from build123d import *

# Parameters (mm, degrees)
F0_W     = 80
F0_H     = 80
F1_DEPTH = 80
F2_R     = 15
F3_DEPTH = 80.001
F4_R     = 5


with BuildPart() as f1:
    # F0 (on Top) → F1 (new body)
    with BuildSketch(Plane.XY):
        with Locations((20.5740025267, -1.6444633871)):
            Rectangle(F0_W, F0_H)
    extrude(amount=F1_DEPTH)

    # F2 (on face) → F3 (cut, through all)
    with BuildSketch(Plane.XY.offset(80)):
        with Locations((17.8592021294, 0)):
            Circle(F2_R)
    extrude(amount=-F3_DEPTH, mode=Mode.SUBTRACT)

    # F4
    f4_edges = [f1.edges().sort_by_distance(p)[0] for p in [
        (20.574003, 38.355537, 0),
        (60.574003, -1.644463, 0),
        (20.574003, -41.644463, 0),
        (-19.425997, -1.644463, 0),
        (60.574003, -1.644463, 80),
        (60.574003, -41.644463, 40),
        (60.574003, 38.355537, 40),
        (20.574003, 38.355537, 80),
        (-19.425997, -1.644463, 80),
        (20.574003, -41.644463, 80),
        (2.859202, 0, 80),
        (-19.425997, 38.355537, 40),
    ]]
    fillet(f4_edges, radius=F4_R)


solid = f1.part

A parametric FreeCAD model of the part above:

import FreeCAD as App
import Part
import Sketcher
from FreeCAD import Vector


def edges_at(feature, points):
    """Names of the edges that pass closest to the given points."""
    edges = feature.Shape.Edges
    near = lambda p: min(range(len(edges)), key=lambda i: edges[i].distToShape(Part.Vertex(*p))[0])
    return sorted({f"Edge{near(p) + 1}" for p in points})

doc = App.newDocument("Part")
params = doc.addObject("Spreadsheet::Sheet", "Params")
for row, (alias, value) in enumerate([
    ("sketch1_width", "80 mm"),
    ("pad1_length", "80 mm"),
    ("sketch2_diameter", "30 mm"),
    ("fillet_radius", "5 mm"),
], start=1):
    params.set(f"A{row}", alias)
    params.set(f"B{row}", "=" + value)
    params.setAlias(f"B{row}", alias)

body = doc.addObject("PartDesign::Body", "Body")

# Sketch on XY plane
sketch1 = body.newObject("Sketcher::SketchObject", "Sketch")
sketch1.AttachmentSupport = (doc.getObject("XY_Plane"), [""])
sketch1.MapMode = "FlatFace"
sketch1.addGeometry([
    Part.LineSegment(Vector(-19, 38, 0), Vector(-19, -42, 0)),
    Part.LineSegment(Vector(-19, -42, 0), Vector(61, -42, 0)),
    Part.LineSegment(Vector(61, -42, 0), Vector(61, 38, 0)),
    Part.LineSegment(Vector(61, 38, 0), Vector(-19, 38, 0)),
], False)
sketch1.addConstraint([
    Sketcher.Constraint("Coincident", 0, 2, 1, 1),
    Sketcher.Constraint("Coincident", 1, 2, 2, 1),
    Sketcher.Constraint("Coincident", 2, 2, 3, 1),
    Sketcher.Constraint("Coincident", 3, 2, 0, 1),
    Sketcher.Constraint("Vertical", 0),
    Sketcher.Constraint("Horizontal", 1),
    Sketcher.Constraint("Vertical", 2),
    Sketcher.Constraint("Horizontal", 3),
    Sketcher.Constraint("Equal", 3, 0),
    Sketcher.Constraint("DistanceX", 1, 1, 1, 2, 80.0),
    Sketcher.Constraint("DistanceX", 0, 2, -1, 1, 19.425997),
    Sketcher.Constraint("DistanceY", 0, 2, -1, 1, 41.644463),
])
sketch1.setExpression("Constraints[9]", "Params.sketch1_width")
pad1 = body.newObject("PartDesign::Pad", "Pad")
pad1.Profile = sketch1
pad1.setExpression("Length", "Params.pad1_length")

# Sketch on XY plane
sketch2 = body.newObject("Sketcher::SketchObject", "Sketch001")
sketch2.AttachmentSupport = (doc.getObject("XY_Plane"), [""])
sketch2.MapMode = "FlatFace"
sketch2.AttachmentOffset = App.Placement(Vector(0, 0, 80), App.Rotation())
sketch2.addGeometry(Part.Circle(Vector(18, 0, 0), Vector(0, 0, 1), 15), False)
sketch2.addConstraint([
    Sketcher.Constraint("PointOnObject", 0, 3, -1),
    Sketcher.Constraint("Diameter", 0, 30.0),
    Sketcher.Constraint("DistanceX", -1, 1, 0, 3, 17.859202),
])
sketch2.setExpression("Constraints[1]", "Params.sketch2_diameter")
pocket1 = body.newObject("PartDesign::Pocket", "Pocket")
pocket1.Profile = sketch2
pocket1.Type = "ThroughAll"
doc.recompute()

fillet = body.newObject("PartDesign::Fillet", "Fillet")
fillet.Base = (pocket1, edges_at(pocket1, [
    (20.574, 38.356, 0),
    (60.574, -1.644, 0),
    (20.574, -41.644, 0),
    (-19.426, -1.644, 0),
    (60.574, -1.644, 80),
    (60.574, -41.644, 40),
    (60.574, 38.356, 40),
    (20.574, 38.356, 80),
    (-19.426, -1.644, 80),
    (20.574, -41.644, 80),
    (2.859, 0, 80),
    (-19.426, 38.356, 40),
]))
fillet.setExpression("Radius", "Params.fillet_radius")

doc.recompute()
